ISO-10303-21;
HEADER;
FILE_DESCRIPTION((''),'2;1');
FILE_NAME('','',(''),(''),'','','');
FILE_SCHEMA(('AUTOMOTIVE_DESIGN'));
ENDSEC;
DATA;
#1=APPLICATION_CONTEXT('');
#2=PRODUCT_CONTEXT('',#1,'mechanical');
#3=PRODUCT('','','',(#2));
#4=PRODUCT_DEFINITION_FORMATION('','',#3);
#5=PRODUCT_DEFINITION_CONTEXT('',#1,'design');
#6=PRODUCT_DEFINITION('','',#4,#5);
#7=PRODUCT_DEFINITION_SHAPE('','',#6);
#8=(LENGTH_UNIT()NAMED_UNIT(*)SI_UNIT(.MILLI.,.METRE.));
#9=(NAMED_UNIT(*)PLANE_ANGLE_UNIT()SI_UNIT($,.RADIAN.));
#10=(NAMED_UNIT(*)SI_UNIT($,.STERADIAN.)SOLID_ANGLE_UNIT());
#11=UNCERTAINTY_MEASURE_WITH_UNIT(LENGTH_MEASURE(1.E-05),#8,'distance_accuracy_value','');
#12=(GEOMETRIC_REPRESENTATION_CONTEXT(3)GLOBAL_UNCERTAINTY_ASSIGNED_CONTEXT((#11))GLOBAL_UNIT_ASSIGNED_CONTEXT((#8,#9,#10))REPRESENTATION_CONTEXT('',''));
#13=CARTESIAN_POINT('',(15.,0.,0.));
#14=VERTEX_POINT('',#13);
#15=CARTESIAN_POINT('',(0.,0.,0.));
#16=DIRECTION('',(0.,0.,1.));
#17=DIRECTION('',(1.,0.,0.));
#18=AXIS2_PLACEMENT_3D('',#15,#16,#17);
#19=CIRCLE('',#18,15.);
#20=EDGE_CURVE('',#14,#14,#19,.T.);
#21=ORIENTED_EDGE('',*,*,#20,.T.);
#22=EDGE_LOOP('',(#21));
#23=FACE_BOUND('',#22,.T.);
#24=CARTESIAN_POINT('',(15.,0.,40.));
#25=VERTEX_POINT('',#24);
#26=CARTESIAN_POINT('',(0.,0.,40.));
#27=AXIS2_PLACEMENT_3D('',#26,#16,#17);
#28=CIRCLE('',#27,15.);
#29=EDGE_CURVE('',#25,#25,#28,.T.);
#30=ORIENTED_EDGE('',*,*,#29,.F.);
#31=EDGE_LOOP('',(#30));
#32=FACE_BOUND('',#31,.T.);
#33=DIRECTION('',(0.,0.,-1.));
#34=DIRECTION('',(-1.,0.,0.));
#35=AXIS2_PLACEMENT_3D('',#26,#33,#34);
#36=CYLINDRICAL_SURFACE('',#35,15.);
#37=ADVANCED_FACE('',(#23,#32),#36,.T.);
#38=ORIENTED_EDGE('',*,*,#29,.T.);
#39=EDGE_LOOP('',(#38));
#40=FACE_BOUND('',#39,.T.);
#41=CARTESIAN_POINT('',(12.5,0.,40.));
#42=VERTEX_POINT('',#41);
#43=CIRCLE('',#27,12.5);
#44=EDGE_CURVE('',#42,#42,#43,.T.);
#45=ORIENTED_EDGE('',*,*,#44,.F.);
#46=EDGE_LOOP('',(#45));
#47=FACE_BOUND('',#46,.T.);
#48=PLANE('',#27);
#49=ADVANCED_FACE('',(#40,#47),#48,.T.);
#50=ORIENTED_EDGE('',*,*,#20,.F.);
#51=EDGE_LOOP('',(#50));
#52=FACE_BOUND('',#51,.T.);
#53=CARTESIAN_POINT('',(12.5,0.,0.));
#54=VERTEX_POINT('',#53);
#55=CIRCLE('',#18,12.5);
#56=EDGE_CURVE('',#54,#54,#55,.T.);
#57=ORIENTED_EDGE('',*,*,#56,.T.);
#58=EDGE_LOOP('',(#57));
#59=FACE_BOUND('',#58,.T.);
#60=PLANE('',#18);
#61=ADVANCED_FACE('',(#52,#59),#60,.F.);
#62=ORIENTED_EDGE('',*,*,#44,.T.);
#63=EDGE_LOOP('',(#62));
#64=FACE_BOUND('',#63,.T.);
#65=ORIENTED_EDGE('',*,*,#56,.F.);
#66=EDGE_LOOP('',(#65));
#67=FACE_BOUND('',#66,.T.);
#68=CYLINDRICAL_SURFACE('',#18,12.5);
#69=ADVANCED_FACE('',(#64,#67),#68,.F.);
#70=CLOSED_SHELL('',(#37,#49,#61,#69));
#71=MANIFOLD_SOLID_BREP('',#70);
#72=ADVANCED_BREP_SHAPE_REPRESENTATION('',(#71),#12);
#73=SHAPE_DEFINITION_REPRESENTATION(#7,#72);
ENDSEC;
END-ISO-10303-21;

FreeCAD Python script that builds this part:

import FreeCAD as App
import Part
import Sketcher

V = App.Vector
Q = App.Units.Quantity

doc = App.newDocument("Part")
body = doc.addObject("PartDesign::Body", "Body")

# Sketch on XY plane
sketch1 = body.newObject("Sketcher::SketchObject", "Sketch")
sketch1.AttachmentSupport = (doc.getObject("XY_Plane"), [""])
sketch1.MapMode = "FlatFace"
sketch1.addGeometry(Part.Circle(V(0, 0, 0), V(0, 0, 1), 15), False)
sketch1.addConstraint(Sketcher.Constraint("Coincident", 0, 3, -1, 1))
sketch1.addConstraint(Sketcher.Constraint("Diameter", 0, Q("30 mm")))
pad1 = body.newObject("PartDesign::Pad", "Pad")
pad1.Profile = sketch1
pad1.Length = 40

# Sketch on XY plane
sketch2 = body.newObject("Sketcher::SketchObject", "Sketch001")
sketch2.AttachmentSupport = (doc.getObject("XY_Plane"), [""])
sketch2.MapMode = "FlatFace"
sketch2.AttachmentOffset = App.Placement(V(0, 0, 40), App.Rotation())
sketch2.addGeometry(Part.Circle(V(0, 0, 0), V(0, 0, 1), 12), False)
sketch2.addConstraint(Sketcher.Constraint("Coincident", 0, 3, -1, 1))
sketch2.addConstraint(Sketcher.Constraint("Diameter", 0, Q("25 mm")))
pocket1 = body.newObject("PartDesign::Pocket", "Pocket")
pocket1.Profile = sketch2
pocket1.Type = "ThroughAll"

doc.recompute()
